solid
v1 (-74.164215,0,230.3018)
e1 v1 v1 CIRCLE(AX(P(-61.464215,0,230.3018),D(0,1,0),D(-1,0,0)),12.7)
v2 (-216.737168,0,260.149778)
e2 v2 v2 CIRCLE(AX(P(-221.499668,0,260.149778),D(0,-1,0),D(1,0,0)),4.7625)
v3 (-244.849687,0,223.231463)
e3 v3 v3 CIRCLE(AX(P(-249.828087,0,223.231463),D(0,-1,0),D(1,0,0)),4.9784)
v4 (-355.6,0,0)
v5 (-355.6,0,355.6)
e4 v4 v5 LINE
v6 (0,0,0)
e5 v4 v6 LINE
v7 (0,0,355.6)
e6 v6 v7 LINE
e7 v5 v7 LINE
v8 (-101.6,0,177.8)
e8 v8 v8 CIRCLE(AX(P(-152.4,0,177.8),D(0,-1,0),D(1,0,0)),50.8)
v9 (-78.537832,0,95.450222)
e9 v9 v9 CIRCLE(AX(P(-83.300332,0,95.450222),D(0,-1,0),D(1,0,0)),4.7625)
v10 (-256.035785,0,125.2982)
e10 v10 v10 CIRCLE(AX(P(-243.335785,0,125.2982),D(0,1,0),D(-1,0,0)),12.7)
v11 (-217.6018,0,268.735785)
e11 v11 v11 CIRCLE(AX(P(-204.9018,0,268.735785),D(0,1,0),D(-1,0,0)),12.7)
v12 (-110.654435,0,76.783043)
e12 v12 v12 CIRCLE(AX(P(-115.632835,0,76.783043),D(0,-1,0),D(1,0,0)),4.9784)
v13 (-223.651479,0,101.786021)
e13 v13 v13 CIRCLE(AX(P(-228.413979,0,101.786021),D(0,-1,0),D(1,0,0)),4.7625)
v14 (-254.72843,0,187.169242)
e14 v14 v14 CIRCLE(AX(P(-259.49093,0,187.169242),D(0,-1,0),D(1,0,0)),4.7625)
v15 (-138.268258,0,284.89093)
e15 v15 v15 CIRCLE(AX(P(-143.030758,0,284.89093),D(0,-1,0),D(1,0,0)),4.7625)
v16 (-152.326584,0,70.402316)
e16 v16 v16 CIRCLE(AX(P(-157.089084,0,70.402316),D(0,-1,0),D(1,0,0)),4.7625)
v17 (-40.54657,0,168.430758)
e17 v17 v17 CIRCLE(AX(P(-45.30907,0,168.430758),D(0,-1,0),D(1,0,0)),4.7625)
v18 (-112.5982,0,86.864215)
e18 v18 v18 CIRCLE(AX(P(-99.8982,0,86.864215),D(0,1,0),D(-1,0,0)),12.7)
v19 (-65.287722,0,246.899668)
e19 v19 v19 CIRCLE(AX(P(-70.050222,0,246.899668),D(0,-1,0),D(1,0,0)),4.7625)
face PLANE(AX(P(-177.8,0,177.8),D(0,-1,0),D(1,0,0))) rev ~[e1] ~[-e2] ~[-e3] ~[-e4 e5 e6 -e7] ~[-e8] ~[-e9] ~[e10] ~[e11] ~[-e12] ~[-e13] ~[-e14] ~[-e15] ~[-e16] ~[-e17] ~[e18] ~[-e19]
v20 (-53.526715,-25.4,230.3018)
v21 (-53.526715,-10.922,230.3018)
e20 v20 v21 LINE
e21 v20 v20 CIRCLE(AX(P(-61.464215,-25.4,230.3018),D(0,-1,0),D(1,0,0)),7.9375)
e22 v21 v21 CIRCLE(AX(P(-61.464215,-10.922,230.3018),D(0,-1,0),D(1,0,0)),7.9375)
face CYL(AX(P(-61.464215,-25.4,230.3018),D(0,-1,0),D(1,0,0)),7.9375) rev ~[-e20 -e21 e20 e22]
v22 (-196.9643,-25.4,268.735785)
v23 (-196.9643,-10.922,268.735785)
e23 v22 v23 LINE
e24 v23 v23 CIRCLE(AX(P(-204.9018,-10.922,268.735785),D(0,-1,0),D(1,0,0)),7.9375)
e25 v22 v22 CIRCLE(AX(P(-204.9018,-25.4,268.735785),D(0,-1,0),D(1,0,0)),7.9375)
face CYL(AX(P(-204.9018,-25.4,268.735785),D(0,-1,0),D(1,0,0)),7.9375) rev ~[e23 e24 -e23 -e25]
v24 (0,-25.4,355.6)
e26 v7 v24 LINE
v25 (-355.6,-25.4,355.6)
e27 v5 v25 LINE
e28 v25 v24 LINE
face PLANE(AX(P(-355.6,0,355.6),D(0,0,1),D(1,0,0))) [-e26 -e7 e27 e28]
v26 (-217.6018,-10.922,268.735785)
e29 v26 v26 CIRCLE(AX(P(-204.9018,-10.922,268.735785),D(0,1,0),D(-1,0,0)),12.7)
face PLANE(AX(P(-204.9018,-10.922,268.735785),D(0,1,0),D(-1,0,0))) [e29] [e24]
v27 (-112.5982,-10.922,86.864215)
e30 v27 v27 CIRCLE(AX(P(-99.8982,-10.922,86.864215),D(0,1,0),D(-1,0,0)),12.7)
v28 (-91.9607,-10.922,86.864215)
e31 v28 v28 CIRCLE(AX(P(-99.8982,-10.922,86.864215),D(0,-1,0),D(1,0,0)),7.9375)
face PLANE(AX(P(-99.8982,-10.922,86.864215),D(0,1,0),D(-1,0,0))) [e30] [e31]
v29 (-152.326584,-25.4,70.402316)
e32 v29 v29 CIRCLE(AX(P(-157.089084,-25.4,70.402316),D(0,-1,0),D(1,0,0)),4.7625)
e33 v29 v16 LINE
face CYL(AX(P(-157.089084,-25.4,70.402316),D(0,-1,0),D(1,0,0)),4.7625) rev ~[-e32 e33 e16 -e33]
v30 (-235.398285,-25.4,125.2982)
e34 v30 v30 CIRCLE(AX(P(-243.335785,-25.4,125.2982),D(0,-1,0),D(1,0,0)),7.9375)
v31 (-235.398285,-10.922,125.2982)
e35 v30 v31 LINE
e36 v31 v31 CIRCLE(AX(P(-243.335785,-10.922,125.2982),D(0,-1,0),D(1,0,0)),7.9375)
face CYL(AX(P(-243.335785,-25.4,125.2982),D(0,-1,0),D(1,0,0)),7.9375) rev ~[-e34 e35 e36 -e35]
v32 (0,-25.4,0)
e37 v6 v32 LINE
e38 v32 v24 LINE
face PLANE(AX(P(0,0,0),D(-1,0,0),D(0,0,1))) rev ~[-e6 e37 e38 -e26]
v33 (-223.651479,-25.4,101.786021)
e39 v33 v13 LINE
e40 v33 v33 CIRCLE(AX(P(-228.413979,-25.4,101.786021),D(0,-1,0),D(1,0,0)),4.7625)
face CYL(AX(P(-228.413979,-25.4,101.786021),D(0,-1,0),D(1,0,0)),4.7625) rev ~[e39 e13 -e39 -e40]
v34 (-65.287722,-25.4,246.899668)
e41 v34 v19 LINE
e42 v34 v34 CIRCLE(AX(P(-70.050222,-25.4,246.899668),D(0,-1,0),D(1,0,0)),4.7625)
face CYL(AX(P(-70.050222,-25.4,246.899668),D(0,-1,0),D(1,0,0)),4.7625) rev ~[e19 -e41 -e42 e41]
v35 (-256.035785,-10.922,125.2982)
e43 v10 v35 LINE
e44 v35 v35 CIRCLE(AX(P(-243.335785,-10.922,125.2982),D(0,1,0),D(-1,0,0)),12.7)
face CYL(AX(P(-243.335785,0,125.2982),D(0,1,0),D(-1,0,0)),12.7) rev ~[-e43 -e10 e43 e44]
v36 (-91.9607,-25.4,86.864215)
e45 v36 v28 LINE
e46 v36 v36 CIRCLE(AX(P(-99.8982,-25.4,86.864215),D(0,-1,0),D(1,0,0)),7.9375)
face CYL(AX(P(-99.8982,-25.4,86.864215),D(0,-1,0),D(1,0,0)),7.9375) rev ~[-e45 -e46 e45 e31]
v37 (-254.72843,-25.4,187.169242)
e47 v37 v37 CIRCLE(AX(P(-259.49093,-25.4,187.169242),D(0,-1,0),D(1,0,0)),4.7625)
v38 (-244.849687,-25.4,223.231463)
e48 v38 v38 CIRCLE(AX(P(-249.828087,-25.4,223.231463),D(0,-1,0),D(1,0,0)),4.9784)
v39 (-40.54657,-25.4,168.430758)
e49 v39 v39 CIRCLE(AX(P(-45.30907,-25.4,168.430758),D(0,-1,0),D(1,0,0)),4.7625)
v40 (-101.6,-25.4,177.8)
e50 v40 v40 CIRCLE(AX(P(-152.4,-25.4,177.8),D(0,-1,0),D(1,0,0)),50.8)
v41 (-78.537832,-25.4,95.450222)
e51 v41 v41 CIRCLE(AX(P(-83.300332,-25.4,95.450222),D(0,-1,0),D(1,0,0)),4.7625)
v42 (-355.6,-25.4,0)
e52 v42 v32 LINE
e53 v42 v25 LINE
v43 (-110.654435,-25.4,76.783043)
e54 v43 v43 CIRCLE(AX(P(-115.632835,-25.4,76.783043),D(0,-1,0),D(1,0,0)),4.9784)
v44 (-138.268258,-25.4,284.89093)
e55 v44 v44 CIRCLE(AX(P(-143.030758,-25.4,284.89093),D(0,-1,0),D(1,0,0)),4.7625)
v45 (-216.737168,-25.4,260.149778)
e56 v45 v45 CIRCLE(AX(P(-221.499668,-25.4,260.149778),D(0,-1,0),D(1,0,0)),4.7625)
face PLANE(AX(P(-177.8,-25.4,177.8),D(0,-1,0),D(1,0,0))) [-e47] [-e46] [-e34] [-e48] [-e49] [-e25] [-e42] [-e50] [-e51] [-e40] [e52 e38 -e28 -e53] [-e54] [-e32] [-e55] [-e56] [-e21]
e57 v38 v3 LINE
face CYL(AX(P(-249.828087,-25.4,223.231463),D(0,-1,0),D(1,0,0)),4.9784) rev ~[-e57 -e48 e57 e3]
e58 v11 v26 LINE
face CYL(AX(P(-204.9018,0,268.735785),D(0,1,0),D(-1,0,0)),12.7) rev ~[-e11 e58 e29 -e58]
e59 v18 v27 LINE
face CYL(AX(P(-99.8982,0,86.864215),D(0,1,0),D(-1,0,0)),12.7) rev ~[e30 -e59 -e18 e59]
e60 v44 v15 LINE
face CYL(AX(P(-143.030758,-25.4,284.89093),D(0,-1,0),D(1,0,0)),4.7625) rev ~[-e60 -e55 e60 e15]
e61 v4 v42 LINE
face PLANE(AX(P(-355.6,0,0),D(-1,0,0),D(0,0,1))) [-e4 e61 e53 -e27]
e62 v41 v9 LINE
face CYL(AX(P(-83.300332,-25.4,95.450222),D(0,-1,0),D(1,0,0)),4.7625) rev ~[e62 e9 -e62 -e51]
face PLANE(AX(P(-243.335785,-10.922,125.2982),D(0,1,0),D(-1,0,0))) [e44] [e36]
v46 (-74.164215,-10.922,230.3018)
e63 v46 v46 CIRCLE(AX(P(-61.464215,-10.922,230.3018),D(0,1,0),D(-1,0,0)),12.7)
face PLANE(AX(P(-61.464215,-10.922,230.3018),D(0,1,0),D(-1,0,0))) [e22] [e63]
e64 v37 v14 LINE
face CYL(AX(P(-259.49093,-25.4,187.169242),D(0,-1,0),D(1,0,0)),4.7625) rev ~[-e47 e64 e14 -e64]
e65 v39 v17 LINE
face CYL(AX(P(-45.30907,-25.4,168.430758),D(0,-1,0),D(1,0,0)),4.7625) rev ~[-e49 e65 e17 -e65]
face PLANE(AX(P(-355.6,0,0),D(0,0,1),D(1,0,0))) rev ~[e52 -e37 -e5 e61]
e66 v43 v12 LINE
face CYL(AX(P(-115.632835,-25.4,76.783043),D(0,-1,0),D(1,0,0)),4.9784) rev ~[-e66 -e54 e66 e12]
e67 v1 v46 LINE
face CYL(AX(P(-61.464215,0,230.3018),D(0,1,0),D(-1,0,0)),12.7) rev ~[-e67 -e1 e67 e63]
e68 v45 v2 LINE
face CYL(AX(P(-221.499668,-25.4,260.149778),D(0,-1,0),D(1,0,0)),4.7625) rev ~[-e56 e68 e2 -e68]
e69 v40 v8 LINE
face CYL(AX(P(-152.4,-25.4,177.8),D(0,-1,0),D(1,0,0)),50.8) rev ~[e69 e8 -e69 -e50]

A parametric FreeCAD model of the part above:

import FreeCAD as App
import Part
import Sketcher
Q = App.Units.Quantity


def add_polygon(sketch, points):
    """Adds a closed chain of lines whose ends are joined by coincident constraints."""
    first, n = sketch.GeometryCount, len(points)
    for a, b in zip(points, points[1:] + points[:1]):
        sketch.addGeometry(Part.LineSegment(App.Vector(*a, 0), App.Vector(*b, 0)), False)
    for i in range(n):
        sketch.addConstraint(Sketcher.Constraint("Coincident", first + i, 2, first + (i + 1) % n, 1))

doc = App.newDocument("Part")
params = doc.addObject("Spreadsheet::Sheet", "Params")
for row, (alias, value) in enumerate([
    ("sketch1_width", "14 in"),
    ("pad1_length", "1 in"),
    ("sketch2_diameter", "4 in"),
    ("sketch2_diameter2", "0.375 in"),
    ("sketch2_diameter3", "0.392 in"),
    ("sketch3_diameter", "0.625 in"),
    ("sketch4_diameter", "1 in"),
    ("pocket3_length", "0.43 in"),
], start=1):
    params.set(f"A{row}", alias)
    params.set(f"B{row}", "=" + value)
    params.setAlias(f"B{row}", alias)

body = doc.addObject("PartDesign::Body", "Body")

# Sketch on XZ plane
sketch1 = body.newObject("Sketcher::SketchObject", "Sketch")
sketch1.AttachmentSupport = (doc.getObject("XZ_Plane"), [""])
sketch1.MapMode = "FlatFace"
add_polygon(sketch1, [(-356, 356), (-356, 0), (0, 0), (0, 356)])  # lines 0-3
sketch1.addConstraint([
    Sketcher.Constraint("Vertical", 0),
    Sketcher.Constraint("Horizontal", 1),
    Sketcher.Constraint("Vertical", 2),
    Sketcher.Constraint("Horizontal", 3),
    Sketcher.Constraint("Coincident", 1, 2, -1, 1),
    Sketcher.Constraint("Equal", 3, 0),
    Sketcher.Constraint("DistanceX", 1, 1, 1, 2, Q("14 in")),
])
sketch1.setExpression("Constraints[10]", "Params.sketch1_width")
pad1 = body.newObject("PartDesign::Pad", "Pad")
pad1.Profile = sketch1
pad1.setExpression("Length", "Params.pad1_length")

# Sketch on XZ plane
sketch2 = body.newObject("Sketcher::SketchObject", "Sketch001")
sketch2.AttachmentSupport = (doc.getObject("XZ_Plane"), [""])
sketch2.MapMode = "FlatFace"
sketch2.AttachmentOffset = App.Placement(App.Vector(0, 0, 1 * 25.4), App.Rotation())
sketch2.addGeometry([
    Part.Circle(App.Vector(-259.5, 187.2, 0), App.Vector(0, 0, 1), 4.8),  # 0
    Part.Circle(App.Vector(-221.5, 260.1, 0), App.Vector(0, 0, 1), 4.8),  # 1
    Part.Circle(App.Vector(-143, 284.9, 0), App.Vector(0, 0, 1), 4.8),  # 2
    Part.Circle(App.Vector(-70.1, 246.9, 0), App.Vector(0, 0, 1), 4.8),  # 3
    Part.Circle(App.Vector(-45.3, 168.4, 0), App.Vector(0, 0, 1), 4.8),  # 4
    Part.Circle(App.Vector(-83.3, 95.5, 0), App.Vector(0, 0, 1), 4.8),  # 5
    Part.Circle(App.Vector(-157.1, 70.4, 0), App.Vector(0, 0, 1), 4.8),  # 6
    Part.Circle(App.Vector(-228.4, 101.8, 0), App.Vector(0, 0, 1), 4.8),  # 7
    Part.Circle(App.Vector(-249.8, 223.2, 0), App.Vector(0, 0, 1), 5),  # 8
    Part.Circle(App.Vector(-115.6, 76.8, 0), App.Vector(0, 0, 1), 5),  # 9
    Part.Circle(App.Vector(-152.4, 177.8, 0), App.Vector(0, 0, 1), 50.8),  # 10
], False)
sketch2.addConstraint([
    Sketcher.Constraint("Equal", 0, 1),
    Sketcher.Constraint("Equal", 1, 2),
    Sketcher.Constraint("Equal", 2, 3),
    Sketcher.Constraint("Equal", 3, 4),
    Sketcher.Constraint("Equal", 4, 5),
    Sketcher.Constraint("Equal", 5, 6),
    Sketcher.Constraint("Equal", 6, 7),
    Sketcher.Constraint("Equal", 8, 9),
    Sketcher.Constraint("Diameter", 10, Q("4 in")),
    Sketcher.Constraint("Diameter", 0, Q("0.375 in")),
    Sketcher.Constraint("Diameter", 8, Q("0.392 in")),
    Sketcher.Constraint("DistanceX", 10, 3, -1, 1, Q("6 in")),
    Sketcher.Constraint("DistanceY", -1, 1, 10, 3, Q("7 in")),
    Sketcher.Constraint("DistanceX", 1, 3, 4, 3, Q("176.190598 mm")),
    Sketcher.Constraint("DistanceX", 0, 3, 5, 3, Q("176.190598 mm")),
    Sketcher.Constraint("DistanceY", 5, 3, 7, 3, Q("6.335799 mm")),
    Sketcher.Constraint("DistanceX", 0, 3, -1, 1, Q("259.49093 mm")),
    Sketcher.Constraint("DistanceY", -1, 1, 0, 3, Q("187.169242 mm")),
    Sketcher.Constraint("DistanceX", 1, 3, -1, 1, Q("221.499668 mm")),
    Sketcher.Constraint("DistanceY", -1, 1, 1, 3, Q("260.149778 mm")),
    Sketcher.Constraint("DistanceX", 2, 3, -1, 1, Q("143.030758 mm")),
    Sketcher.Constraint("DistanceY", -1, 1, 2, 3, Q("284.89093 mm")),
    Sketcher.Constraint("DistanceY", -1, 1, 3, 3, Q("246.899668 mm")),
    Sketcher.Constraint("DistanceY", -1, 1, 4, 3, Q("168.430758 mm")),
    Sketcher.Constraint("DistanceY", -1, 1, 5, 3, Q("95.450222 mm")),
    Sketcher.Constraint("DistanceX", 7, 3, -1, 1, Q("228.413979 mm")),
    Sketcher.Constraint("DistanceX", 5, 3, 3, 3, Q("13.25011 mm")),
    Sketcher.Constraint("DistanceY", 6, 3, 4, 3, Q("98.028442 mm")),
    Sketcher.Constraint("DistanceY", 0, 3, 8, 3, Q("36.062221 mm")),
    Sketcher.Constraint("DistanceX", 8, 3, 1, 3, Q("28.328419 mm")),
    Sketcher.Constraint("DistanceY", 9, 3, 5, 3, Q("18.667179 mm")),
    Sketcher.Constraint("DistanceX", 6, 3, 9, 3, Q("41.456249 mm")),
    Sketcher.Constraint("DistanceX", 6, 3, -1, 1, Q("157.089084 mm")),
])
sketch2.setExpression("Constraints[8]", "Params.sketch2_diameter")
sketch2.setExpression("Constraints[9]", "Params.sketch2_diameter2")
sketch2.setExpression("Constraints[10]", "Params.sketch2_diameter3")
pocket1 = body.newObject("PartDesign::Pocket", "Pocket")
pocket1.Profile = sketch2
pocket1.Type = "ThroughAll"

# Sketch on XZ plane
sketch3 = body.newObject("Sketcher::SketchObject", "Sketch002")
sketch3.AttachmentSupport = (doc.getObject("XZ_Plane"), [""])
sketch3.MapMode = "FlatFace"
sketch3.AttachmentOffset = App.Placement(App.Vector(0, 0, 1 * 25.4), App.Rotation())
sketch3.addGeometry([
    Part.Circle(App.Vector(-205, 269, 0), App.Vector(0, 0, 1), 8),
    Part.Circle(App.Vector(-243, 125, 0), App.Vector(0, 0, 1), 8),
    Part.Circle(App.Vector(-100, 87, 0), App.Vector(0, 0, 1), 8),
    Part.Circle(App.Vector(-61, 230, 0), App.Vector(0, 0, 1), 8),
], False)
sketch3.addConstraint([
    Sketcher.Constraint("Equal", 0, 1),
    Sketcher.Constraint("Equal", 1, 2),
    Sketcher.Constraint("Equal", 2, 3),
    Sketcher.Constraint("Diameter", 0, Q("0.625 in")),
    Sketcher.Constraint("DistanceX", 0, 3, -1, 1, Q("8.067 in")),
    Sketcher.Constraint("DistanceY", -1, 1, 1, 3, Q("4.933 in")),
    Sketcher.Constraint("DistanceX", 2, 3, -1, 1, Q("3.933 in")),
    Sketcher.Constraint("DistanceY", -1, 1, 3, 3, Q("9.067 in")),
    Sketcher.Constraint("DistanceY", 2, 3, 0, 3, Q("181.87157 mm")),
    Sketcher.Constraint("DistanceX", 1, 3, 3, 3, Q("181.87157 mm")),
    Sketcher.Constraint("DistanceY", -1, 1, 0, 3, Q("268.735785 mm")),
    Sketcher.Constraint("DistanceX", 1, 3, -1, 1, Q("243.335785 mm")),
])
sketch3.setExpression("Constraints[3]", "Params.sketch3_diameter")
pocket2 = body.newObject("PartDesign::Pocket", "Pocket001")
pocket2.Profile = sketch3
pocket2.Type = "ThroughAll"

# Sketch on XZ plane
sketch4 = body.newObject("Sketcher::SketchObject", "Sketch003")
sketch4.AttachmentSupport = (doc.getObject("XZ_Plane"), [""])
sketch4.MapMode = "FlatFace"
sketch4.addGeometry([
    Part.Circle(App.Vector(-205, 269, 0), App.Vector(0, 0, 1), 13),
    Part.Circle(App.Vector(-243, 125, 0), App.Vector(0, 0, 1), 13),
    Part.Circle(App.Vector(-100, 87, 0), App.Vector(0, 0, 1), 13),
    Part.Circle(App.Vector(-61, 230, 0), App.Vector(0, 0, 1), 13),
], False)
sketch4.addConstraint([
    Sketcher.Constraint("Equal", 0, 1),
    Sketcher.Constraint("Equal", 1, 2),
    Sketcher.Constraint("Equal", 2, 3),
    Sketcher.Constraint("Diameter", 0, Q("1 in")),
    Sketcher.Constraint("DistanceX", 0, 3, -1, 1, Q("8.067 in")),
    Sketcher.Constraint("DistanceY", -1, 1, 1, 3, Q("4.933 in")),
    Sketcher.Constraint("DistanceX", 2, 3, -1, 1, Q("3.933 in")),
    Sketcher.Constraint("DistanceY", -1, 1, 3, 3, Q("9.067 in")),
    Sketcher.Constraint("DistanceY", 2, 3, 0, 3, Q("181.87157 mm")),
    Sketcher.Constraint("DistanceX", 1, 3, 3, 3, Q("181.87157 mm")),
    Sketcher.Constraint("DistanceY", -1, 1, 0, 3, Q("268.735785 mm")),
    Sketcher.Constraint("DistanceX", 1, 3, -1, 1, Q("243.335785 mm")),
])
sketch4.setExpression("Constraints[3]", "Params.sketch4_diameter")
pocket3 = body.newObject("PartDesign::Pocket", "Pocket002")
pocket3.Profile = sketch4
pocket3.setExpression("Length", "Params.pocket3_length")
pocket3.Reversed = True

doc.recompute()
